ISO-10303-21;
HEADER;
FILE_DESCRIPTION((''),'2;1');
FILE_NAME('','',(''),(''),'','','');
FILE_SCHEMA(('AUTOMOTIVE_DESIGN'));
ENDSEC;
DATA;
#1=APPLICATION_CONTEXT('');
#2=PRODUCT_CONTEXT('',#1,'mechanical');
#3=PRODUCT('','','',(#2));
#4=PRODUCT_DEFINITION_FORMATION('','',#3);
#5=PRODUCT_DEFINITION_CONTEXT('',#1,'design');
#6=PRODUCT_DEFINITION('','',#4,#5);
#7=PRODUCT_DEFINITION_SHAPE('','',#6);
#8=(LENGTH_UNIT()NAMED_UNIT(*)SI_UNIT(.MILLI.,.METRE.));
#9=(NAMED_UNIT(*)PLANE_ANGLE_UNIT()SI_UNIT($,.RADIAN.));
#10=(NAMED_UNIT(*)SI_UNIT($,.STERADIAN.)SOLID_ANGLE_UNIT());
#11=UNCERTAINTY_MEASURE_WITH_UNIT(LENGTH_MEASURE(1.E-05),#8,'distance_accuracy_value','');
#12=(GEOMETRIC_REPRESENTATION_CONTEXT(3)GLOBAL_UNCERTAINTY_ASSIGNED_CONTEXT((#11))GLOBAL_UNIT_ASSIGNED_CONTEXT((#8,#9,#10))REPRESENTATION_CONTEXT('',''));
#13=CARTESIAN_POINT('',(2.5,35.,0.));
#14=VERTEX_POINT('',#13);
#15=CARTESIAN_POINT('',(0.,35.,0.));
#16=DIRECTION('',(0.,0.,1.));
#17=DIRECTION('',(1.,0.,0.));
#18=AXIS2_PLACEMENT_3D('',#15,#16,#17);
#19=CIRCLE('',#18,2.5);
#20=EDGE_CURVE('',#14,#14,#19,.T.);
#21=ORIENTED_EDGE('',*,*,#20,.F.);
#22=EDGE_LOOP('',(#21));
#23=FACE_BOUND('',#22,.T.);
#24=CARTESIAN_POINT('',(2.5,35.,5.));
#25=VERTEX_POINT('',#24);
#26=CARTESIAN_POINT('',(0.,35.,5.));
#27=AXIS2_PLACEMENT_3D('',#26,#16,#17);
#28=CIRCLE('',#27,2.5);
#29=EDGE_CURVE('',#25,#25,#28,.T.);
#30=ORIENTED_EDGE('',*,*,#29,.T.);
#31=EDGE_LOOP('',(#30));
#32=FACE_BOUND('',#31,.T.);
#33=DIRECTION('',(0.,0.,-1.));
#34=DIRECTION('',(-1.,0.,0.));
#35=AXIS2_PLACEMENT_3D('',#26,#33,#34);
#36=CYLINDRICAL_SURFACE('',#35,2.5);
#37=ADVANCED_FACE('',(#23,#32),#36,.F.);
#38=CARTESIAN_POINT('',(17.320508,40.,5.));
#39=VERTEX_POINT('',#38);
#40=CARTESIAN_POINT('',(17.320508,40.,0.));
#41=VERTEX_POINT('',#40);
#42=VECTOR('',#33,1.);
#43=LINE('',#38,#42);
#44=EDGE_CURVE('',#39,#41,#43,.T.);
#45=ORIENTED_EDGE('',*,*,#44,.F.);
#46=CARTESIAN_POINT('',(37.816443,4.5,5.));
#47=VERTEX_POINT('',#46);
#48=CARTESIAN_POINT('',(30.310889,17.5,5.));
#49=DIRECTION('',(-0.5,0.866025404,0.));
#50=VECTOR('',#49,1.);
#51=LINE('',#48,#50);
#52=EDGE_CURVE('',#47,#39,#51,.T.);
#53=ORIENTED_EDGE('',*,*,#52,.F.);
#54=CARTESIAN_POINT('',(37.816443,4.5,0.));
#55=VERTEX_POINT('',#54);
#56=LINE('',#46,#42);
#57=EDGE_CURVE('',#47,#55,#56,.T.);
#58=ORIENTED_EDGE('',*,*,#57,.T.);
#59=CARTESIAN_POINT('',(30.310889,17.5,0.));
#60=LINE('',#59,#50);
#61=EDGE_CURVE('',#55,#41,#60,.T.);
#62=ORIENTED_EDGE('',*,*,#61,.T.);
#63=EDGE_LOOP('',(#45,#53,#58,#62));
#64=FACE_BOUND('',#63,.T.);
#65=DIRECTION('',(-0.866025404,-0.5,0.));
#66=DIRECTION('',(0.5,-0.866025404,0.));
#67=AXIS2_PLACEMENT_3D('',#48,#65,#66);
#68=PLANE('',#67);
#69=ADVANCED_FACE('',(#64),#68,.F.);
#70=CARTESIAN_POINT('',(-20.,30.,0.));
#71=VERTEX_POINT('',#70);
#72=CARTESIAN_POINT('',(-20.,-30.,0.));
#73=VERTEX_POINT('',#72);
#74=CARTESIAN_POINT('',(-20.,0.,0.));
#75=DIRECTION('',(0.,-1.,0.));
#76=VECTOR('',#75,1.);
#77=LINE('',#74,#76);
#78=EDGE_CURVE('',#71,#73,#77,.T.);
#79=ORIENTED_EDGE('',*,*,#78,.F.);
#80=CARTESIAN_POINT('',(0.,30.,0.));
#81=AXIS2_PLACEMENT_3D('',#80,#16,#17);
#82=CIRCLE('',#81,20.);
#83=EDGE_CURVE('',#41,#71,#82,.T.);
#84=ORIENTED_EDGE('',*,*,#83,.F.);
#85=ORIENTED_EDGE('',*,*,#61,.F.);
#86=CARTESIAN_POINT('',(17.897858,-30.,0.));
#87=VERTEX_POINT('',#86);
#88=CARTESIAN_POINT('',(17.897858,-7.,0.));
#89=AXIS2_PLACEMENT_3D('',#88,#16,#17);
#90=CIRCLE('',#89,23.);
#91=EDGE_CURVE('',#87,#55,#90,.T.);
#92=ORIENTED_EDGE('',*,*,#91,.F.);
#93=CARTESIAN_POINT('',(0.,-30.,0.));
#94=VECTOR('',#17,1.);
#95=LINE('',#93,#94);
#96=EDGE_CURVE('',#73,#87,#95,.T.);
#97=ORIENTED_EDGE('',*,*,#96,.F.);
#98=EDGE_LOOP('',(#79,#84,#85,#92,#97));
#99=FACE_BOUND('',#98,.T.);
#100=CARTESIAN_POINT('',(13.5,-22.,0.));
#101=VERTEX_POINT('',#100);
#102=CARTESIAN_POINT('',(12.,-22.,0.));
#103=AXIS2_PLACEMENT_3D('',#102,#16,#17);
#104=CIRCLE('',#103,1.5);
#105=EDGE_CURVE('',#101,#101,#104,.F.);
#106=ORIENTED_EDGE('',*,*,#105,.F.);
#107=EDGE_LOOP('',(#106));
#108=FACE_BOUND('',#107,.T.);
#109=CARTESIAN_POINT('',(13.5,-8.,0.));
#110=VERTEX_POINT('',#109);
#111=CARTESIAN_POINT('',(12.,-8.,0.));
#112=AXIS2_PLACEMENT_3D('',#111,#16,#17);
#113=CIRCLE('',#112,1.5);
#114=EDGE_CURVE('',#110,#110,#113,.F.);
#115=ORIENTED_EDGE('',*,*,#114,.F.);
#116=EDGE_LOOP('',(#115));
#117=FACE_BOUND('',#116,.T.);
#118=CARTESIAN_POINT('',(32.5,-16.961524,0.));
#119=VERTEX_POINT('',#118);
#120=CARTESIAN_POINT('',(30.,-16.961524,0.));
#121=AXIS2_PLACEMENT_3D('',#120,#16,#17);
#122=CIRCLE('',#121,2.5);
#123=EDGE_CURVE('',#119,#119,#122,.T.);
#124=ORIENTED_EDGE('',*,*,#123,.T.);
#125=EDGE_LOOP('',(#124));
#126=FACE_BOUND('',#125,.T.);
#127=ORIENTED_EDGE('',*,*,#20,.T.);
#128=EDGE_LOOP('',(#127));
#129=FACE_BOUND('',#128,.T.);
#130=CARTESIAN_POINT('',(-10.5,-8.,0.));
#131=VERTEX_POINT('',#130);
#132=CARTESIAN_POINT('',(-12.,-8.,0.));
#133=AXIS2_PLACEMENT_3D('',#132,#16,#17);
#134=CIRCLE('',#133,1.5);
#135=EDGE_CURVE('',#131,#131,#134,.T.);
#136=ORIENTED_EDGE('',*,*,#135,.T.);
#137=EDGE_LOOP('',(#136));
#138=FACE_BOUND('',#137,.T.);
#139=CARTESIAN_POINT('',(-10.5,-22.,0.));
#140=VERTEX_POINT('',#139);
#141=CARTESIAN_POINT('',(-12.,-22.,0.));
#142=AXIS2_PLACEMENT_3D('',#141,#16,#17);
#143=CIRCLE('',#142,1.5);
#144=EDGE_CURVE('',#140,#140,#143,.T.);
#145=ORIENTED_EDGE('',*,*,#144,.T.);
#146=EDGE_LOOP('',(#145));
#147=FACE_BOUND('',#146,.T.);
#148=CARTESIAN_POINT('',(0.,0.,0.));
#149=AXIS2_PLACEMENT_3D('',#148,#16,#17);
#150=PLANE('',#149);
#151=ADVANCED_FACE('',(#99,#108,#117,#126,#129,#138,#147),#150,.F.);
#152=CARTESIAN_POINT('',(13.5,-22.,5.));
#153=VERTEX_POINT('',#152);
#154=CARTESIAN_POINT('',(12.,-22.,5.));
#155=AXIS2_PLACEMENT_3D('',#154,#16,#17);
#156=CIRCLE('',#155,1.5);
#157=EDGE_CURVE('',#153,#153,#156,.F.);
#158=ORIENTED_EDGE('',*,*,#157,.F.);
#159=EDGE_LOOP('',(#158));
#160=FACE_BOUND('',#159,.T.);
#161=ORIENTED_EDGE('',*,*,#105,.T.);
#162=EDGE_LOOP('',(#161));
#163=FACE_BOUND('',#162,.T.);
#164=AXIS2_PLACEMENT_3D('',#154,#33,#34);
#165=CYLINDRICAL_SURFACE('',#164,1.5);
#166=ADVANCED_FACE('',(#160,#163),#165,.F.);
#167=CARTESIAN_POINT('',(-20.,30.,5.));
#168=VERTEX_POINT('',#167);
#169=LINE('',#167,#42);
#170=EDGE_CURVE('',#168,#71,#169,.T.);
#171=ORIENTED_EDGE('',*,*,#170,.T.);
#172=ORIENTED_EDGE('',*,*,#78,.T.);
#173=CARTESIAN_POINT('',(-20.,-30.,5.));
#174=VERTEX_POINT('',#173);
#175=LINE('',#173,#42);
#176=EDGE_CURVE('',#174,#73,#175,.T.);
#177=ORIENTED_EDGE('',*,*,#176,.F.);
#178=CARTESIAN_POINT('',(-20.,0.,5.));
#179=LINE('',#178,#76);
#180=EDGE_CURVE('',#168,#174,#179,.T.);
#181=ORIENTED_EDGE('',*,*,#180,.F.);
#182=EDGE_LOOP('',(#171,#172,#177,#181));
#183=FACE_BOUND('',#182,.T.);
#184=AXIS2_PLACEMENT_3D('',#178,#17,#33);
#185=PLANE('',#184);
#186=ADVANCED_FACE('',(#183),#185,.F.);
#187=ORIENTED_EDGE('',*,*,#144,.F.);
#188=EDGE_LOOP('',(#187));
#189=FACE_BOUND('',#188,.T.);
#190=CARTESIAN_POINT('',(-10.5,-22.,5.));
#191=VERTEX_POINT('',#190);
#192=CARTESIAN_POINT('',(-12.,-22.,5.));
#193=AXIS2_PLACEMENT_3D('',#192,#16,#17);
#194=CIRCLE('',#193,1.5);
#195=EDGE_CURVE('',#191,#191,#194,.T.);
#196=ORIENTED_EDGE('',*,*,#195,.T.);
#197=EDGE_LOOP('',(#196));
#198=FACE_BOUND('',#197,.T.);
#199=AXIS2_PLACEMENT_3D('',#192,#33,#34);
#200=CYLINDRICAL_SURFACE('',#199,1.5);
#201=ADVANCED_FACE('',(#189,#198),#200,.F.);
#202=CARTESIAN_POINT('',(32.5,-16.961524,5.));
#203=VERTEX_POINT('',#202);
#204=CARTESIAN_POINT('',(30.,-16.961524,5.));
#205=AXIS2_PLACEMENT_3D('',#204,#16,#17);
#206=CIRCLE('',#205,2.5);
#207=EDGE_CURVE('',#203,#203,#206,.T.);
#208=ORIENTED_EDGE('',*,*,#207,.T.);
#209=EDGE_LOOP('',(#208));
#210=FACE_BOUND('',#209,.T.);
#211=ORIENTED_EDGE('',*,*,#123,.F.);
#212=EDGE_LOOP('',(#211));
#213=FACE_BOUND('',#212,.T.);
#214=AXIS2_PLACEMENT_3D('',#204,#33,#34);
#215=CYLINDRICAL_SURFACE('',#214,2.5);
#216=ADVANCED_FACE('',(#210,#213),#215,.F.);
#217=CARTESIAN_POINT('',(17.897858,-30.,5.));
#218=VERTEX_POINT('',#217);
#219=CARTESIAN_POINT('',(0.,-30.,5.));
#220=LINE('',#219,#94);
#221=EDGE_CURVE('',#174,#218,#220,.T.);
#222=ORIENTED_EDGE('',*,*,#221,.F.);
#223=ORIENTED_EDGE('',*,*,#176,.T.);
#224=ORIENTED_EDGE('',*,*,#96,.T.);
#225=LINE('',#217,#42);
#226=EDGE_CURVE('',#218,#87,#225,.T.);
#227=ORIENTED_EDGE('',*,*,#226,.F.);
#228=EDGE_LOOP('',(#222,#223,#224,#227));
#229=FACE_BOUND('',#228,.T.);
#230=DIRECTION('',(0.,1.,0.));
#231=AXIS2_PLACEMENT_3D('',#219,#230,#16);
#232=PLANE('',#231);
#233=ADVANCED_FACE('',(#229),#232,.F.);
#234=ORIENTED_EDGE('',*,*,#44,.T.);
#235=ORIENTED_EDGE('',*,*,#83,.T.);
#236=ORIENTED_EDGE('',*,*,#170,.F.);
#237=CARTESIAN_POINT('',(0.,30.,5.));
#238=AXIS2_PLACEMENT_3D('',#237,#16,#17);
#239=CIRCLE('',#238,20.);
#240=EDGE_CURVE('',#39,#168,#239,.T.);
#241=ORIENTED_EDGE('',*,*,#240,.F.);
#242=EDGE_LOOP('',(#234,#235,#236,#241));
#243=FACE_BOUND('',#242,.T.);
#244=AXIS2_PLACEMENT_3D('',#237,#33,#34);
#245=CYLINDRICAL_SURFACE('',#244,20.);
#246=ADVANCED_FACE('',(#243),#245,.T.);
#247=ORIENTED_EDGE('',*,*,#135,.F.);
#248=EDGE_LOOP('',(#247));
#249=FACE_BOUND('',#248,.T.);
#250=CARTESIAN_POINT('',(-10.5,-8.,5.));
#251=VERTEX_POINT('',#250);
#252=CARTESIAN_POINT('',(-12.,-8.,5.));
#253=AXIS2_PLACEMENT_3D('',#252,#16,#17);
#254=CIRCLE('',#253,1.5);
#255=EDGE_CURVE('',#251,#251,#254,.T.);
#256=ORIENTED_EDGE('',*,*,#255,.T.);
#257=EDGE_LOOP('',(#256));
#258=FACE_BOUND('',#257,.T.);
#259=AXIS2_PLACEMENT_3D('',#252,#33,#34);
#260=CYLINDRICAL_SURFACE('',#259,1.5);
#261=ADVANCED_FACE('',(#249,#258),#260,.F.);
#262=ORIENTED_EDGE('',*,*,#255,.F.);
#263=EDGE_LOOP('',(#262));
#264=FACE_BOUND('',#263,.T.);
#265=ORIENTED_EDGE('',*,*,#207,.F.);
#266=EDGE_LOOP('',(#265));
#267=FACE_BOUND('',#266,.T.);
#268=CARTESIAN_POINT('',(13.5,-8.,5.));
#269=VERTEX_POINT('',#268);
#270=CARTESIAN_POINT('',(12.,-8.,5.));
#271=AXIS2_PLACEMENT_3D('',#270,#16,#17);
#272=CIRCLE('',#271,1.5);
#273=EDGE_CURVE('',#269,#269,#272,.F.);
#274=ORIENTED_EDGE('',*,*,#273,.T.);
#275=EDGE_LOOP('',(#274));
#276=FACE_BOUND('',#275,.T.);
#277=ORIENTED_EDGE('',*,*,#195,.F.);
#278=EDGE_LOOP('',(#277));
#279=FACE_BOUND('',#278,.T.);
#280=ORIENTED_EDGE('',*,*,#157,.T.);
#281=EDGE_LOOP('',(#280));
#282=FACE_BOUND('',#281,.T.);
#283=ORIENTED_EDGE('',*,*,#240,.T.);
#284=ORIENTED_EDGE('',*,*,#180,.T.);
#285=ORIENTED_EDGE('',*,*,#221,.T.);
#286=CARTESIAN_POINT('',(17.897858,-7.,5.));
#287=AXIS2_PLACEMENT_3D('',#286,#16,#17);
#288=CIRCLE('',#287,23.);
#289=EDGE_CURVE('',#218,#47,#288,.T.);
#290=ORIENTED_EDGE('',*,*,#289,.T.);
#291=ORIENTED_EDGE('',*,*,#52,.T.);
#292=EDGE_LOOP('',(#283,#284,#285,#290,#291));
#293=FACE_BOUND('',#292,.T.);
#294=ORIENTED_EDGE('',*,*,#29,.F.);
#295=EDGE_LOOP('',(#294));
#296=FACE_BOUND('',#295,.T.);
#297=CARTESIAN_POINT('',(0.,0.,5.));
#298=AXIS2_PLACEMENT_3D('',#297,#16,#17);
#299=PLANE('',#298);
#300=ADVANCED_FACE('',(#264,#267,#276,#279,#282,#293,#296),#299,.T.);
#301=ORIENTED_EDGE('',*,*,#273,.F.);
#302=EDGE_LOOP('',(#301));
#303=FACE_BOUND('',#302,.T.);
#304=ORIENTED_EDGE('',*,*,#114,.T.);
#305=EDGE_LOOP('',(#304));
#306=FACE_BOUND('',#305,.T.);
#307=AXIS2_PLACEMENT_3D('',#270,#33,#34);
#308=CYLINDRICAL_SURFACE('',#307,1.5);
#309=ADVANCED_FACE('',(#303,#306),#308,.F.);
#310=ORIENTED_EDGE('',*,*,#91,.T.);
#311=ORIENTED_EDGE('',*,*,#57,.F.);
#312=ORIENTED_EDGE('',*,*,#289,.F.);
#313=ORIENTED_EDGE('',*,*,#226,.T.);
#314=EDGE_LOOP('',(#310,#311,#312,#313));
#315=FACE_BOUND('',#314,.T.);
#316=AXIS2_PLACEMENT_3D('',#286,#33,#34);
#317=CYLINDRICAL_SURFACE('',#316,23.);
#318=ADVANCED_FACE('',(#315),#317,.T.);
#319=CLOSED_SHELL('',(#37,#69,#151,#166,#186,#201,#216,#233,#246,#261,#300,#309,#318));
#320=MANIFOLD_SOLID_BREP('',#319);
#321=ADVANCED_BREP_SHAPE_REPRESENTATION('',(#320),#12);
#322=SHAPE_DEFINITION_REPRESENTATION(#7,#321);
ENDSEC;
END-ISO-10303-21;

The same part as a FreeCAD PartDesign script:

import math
import FreeCAD as App
import Part
import Sketcher

V = App.Vector
Q = App.Units.Quantity

doc = App.newDocument("Part")
body = doc.addObject("PartDesign::Body", "Body")

# Sketch on XY plane
sketch1 = body.newObject("Sketcher::SketchObject", "Sketch")
sketch1.AttachmentSupport = (doc.getObject("XY_Plane"), [""])
sketch1.MapMode = "FlatFace"
sketch1.addGeometry([
    Part.LineSegment(V(-20, 30, 0), V(-20, -30, 0)),  # 0
    Part.LineSegment(V(-20, -30, 0), V(17.897858, -30, 0)),  # 1
    Part.ArcOfCircle(Part.Circle(V(17.897858, -7, 0), V(0, 0, 1), 23), math.radians(-90), math.radians(30)),  # 2
    Part.LineSegment(V(37.816443, 4.5, 0), V(17.320508, 40, 0)),  # 3
    Part.ArcOfCircle(Part.Circle(V(0, 30, 0), V(0, 0, 1), 20), math.radians(30), math.radians(180)),  # 4
    Part.Circle(V(-12, -22, 0), V(0, 0, 1), 1.5),  # 5
    Part.Circle(V(-12, -8, 0), V(0, 0, 1), 1.5),  # 6
    Part.Circle(V(12, -22, 0), V(0, 0, 1), 1.5),  # 7
    Part.Circle(V(30, -16.961524, 0), V(0, 0, 1), 2.5),  # 8
    Part.Circle(V(12, -8, 0), V(0, 0, 1), 1.5),  # 9
    Part.Circle(V(0, 35, 0), V(0, 0, 1), 2.5),  # 10
], False)
sketch1.addConstraint([
    Sketcher.Constraint("Coincident", 0, 2, 1, 1),
    Sketcher.Constraint("Tangent", 1, 2, 2, 1),
    Sketcher.Constraint("Tangent", 2, 2, 3, 1),
    Sketcher.Constraint("Tangent", 3, 2, 4, 1),
    Sketcher.Constraint("Tangent", 4, 2, 0, 1),
    Sketcher.Constraint("Vertical", 0),
    Sketcher.Constraint("Horizontal", 1),
    Sketcher.Constraint("Equal", 5, 6),
    Sketcher.Constraint("Equal", 6, 7),
    Sketcher.Constraint("Equal", 7, 9),
    Sketcher.Constraint("Equal", 8, 10),
    Sketcher.Constraint("Symmetric", 5, 3, 7, 3, -2),
    Sketcher.Constraint("Symmetric", 6, 3, 9, 3, -2),
    Sketcher.Constraint("PointOnObject", 4, 3, -2),
    Sketcher.Constraint("PointOnObject", 10, 3, -2),
    Sketcher.Constraint("Vertical", 5, 3, 6, 3),
    Sketcher.Constraint("Diameter", 5, Q("3 mm")),
    Sketcher.Constraint("Diameter", 8, Q("5 mm")),
    Sketcher.Constraint("Radius", 2, Q("23 mm")),
    Sketcher.Constraint("Radius", 4, Q("20 mm")),
    Sketcher.Constraint("DistanceY", 0, 2, 0, 1, Q("60 mm")),
    Sketcher.Constraint("Angle", 3, Q("120 deg")),
    Sketcher.Constraint("DistanceY", 2, 3, -1, 1, Q("7 mm")),
    Sketcher.Constraint("DistanceX", 5, 3, -1, 1, Q("12 mm")),
    Sketcher.Constraint("DistanceY", 5, 3, -1, 1, Q("22 mm")),
    Sketcher.Constraint("DistanceY", 6, 3, -1, 1, Q("8 mm")),
    Sketcher.Constraint("DistanceX", -1, 1, 8, 3, Q("30 mm")),
    Sketcher.Constraint("DistanceY", -1, 1, 10, 3, Q("35 mm")),
    Sketcher.Constraint("DistanceY", 8, 3, -1, 1, Q("16.961524 mm")),
])
pad1 = body.newObject("PartDesign::Pad", "Pad")
pad1.Profile = sketch1
pad1.Length = 5

doc.recompute()
